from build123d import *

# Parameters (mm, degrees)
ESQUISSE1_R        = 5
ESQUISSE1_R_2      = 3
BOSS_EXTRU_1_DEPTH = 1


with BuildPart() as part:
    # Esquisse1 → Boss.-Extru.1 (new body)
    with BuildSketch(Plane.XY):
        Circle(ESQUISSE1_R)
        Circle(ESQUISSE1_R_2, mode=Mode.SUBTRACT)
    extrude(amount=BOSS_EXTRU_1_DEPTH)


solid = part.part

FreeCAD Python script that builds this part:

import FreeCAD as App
import Part
import Sketcher
from FreeCAD import Vector
Q = App.Units.Quantity

doc = App.newDocument("Part")
body = doc.addObject("PartDesign::Body", "Body")

# Sketch on XY plane
sketch1 = body.newObject("Sketcher::SketchObject", "Sketch")
sketch1.AttachmentSupport = (doc.getObject("XY_Plane"), [""])
sketch1.MapMode = "FlatFace"
sketch1.addGeometry([
    Part.Circle(Vector(0, 0, 0), Vector(0, 0, 1), 5),
    Part.Circle(Vector(0, 0, 0), Vector(0, 0, 1), 3),
], False)
sketch1.addConstraint([
    Sketcher.Constraint("Coincident", 0, 3, -1, 1),
    Sketcher.Constraint("Coincident", 1, 3, -1, 1),
    Sketcher.Constraint("Diameter", 0, Q("10 mm")),
    Sketcher.Constraint("Diameter", 1, Q("6 mm")),
])
pad1 = body.newObject("PartDesign::Pad", "Pad")
pad1.Profile = sketch1
pad1.Length = 1

doc.recompute()
